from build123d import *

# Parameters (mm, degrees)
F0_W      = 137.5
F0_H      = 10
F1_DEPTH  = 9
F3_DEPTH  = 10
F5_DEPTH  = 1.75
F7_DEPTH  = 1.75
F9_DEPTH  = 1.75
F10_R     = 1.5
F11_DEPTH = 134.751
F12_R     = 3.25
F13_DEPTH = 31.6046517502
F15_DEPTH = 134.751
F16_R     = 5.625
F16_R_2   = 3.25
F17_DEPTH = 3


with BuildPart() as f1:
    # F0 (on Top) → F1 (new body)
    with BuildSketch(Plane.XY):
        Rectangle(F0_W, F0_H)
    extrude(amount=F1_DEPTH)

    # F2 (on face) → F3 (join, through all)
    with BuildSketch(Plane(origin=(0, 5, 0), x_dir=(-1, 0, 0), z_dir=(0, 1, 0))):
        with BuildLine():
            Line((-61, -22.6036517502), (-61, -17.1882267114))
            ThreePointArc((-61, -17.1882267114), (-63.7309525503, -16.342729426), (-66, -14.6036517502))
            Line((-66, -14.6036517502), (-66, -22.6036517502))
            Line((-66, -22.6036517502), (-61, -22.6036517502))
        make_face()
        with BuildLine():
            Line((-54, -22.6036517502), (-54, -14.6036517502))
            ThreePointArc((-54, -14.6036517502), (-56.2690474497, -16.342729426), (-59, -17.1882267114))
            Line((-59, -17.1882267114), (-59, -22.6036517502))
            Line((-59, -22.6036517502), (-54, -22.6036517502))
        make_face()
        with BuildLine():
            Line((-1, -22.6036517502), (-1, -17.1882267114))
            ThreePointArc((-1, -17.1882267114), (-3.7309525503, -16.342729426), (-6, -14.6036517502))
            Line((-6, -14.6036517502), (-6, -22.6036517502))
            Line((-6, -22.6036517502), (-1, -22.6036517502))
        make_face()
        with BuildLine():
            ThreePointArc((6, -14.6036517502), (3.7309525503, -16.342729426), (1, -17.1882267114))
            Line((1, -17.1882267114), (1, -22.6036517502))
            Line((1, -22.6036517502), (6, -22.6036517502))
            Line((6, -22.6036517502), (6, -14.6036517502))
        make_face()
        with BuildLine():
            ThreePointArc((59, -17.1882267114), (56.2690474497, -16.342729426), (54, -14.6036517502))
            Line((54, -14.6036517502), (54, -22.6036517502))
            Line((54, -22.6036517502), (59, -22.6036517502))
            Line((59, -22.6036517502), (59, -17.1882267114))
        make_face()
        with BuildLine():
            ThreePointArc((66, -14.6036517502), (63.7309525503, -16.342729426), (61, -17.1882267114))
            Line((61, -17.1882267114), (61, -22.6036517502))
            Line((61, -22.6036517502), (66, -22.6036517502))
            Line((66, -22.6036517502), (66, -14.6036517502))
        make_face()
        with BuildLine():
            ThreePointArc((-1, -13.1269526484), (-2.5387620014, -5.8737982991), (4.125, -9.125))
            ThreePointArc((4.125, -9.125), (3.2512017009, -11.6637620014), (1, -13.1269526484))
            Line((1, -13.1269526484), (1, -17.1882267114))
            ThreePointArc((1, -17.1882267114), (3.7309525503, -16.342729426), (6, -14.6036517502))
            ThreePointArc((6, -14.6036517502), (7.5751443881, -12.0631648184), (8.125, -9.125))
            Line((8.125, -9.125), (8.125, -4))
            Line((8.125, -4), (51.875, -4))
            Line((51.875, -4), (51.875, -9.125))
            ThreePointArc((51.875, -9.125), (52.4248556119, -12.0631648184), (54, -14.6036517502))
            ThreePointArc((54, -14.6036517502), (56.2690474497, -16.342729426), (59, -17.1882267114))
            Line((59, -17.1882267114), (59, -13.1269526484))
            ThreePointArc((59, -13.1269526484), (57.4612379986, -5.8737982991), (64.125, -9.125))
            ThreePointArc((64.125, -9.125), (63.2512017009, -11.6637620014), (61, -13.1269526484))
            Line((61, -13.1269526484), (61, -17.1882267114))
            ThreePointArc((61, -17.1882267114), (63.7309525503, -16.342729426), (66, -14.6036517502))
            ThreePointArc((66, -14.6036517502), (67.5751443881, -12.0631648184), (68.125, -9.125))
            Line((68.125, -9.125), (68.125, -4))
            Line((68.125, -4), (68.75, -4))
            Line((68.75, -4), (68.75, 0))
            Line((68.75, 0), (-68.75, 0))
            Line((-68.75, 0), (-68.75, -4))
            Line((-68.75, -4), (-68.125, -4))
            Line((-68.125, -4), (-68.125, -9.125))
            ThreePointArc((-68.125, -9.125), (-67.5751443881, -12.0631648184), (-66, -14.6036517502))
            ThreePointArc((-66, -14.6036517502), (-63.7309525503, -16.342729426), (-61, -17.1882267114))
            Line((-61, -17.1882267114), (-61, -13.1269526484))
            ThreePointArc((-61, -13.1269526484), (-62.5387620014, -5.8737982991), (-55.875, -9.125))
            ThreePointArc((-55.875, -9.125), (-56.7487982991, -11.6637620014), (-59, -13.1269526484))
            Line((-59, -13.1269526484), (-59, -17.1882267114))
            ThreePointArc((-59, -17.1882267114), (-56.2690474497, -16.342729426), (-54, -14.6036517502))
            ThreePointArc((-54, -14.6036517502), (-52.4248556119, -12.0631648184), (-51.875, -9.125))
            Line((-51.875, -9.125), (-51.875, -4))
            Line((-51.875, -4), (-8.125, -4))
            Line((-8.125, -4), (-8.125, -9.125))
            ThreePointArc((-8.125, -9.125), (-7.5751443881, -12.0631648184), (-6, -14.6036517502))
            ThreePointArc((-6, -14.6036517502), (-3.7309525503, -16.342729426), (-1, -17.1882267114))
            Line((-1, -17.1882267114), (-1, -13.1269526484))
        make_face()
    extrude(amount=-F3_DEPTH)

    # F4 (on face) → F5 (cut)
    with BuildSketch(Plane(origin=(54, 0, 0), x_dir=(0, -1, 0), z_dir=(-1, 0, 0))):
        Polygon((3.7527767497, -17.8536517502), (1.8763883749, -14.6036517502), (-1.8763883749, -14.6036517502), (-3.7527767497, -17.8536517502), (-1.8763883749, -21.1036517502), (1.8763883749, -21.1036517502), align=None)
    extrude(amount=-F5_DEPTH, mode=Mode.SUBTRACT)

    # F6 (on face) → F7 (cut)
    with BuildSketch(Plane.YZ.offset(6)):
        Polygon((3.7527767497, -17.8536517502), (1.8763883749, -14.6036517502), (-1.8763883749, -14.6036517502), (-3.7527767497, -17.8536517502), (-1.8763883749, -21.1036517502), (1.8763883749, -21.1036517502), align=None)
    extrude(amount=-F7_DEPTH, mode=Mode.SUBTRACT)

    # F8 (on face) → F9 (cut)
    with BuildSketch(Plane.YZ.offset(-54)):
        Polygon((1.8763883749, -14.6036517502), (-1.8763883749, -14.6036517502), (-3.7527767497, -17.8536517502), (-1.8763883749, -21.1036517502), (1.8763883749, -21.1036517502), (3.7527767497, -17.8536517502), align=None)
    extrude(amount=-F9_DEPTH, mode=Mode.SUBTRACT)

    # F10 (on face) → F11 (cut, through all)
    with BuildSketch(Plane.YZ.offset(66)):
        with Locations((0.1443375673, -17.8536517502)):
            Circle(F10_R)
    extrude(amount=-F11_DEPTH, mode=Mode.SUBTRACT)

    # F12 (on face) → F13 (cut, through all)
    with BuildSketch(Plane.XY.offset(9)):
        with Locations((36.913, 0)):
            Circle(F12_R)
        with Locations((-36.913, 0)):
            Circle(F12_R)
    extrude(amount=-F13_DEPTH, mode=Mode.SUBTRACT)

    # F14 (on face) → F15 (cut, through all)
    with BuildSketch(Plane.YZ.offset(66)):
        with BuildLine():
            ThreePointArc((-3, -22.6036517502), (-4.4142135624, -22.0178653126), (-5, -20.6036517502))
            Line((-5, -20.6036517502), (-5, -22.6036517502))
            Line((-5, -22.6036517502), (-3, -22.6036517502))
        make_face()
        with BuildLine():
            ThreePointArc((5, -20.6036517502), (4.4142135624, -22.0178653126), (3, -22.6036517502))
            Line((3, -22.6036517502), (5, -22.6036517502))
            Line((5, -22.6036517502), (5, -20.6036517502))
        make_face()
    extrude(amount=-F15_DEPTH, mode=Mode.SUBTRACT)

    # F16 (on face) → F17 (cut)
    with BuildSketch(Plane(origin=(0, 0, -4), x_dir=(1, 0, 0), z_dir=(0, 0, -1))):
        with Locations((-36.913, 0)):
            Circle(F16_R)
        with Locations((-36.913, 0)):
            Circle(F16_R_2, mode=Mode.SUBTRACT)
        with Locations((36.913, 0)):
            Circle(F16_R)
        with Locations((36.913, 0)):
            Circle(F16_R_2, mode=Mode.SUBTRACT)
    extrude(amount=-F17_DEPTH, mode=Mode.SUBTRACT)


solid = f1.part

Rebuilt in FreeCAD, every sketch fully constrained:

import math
import FreeCAD as App
import Part
import Sketcher
Q = App.Units.Quantity


def add_polygon(sketch, points):
    """Adds a closed chain of lines whose ends are joined by coincident constraints."""
    first, n = sketch.GeometryCount, len(points)
    for a, b in zip(points, points[1:] + points[:1]):
        sketch.addGeometry(Part.LineSegment(App.Vector(*a, 0), App.Vector(*b, 0)), False)
    for i in range(n):
        sketch.addConstraint(Sketcher.Constraint("Coincident", first + i, 2, first + (i + 1) % n, 1))

doc = App.newDocument("Part")
body = doc.addObject("PartDesign::Body", "Body")

# Sketch on XY plane
sketch1 = body.newObject("Sketcher::SketchObject", "Sketch")
sketch1.AttachmentSupport = (doc.getObject("XY_Plane"), [""])
sketch1.MapMode = "FlatFace"
add_polygon(sketch1, [(-69, 5), (-69, -5), (69, -5), (69, 5)])  # lines 0-3
sketch1.addConstraint([
    Sketcher.Constraint("Vertical", 0),
    Sketcher.Constraint("Horizontal", 1),
    Sketcher.Constraint("Vertical", 2),
    Sketcher.Constraint("Horizontal", 3),
    Sketcher.Constraint("Symmetric", 0, 2, 2, 2, -1, 1),
    Sketcher.Constraint("DistanceY", 0, 2, 0, 1, 10.0),
    Sketcher.Constraint("DistanceX", 1, 1, 1, 2, 137.5),
])
pad1 = body.newObject("PartDesign::Pad", "Pad")
pad1.Profile = sketch1
pad1.Length = 9

# Sketch on XZ plane
sketch2 = body.newObject("Sketcher::SketchObject", "Sketch001")
sketch2.AttachmentSupport = (doc.getObject("XZ_Plane"), [""])
sketch2.MapMode = "FlatFace"
sketch2.AttachmentOffset = App.Placement(App.Vector(0, 0, -5), App.Rotation())
sketch2.addGeometry([
    Part.LineSegment(App.Vector(61, -22.6, 0), App.Vector(61, -13.1, 0)),  # 0
    Part.ArcOfCircle(Part.Circle(App.Vector(60, -9.1, 0), App.Vector(0, 0, 1), 4.1), math.radians(-76), math.radians(180)),  # 1
    Part.ArcOfCircle(Part.Circle(App.Vector(60, -9.1, 0), App.Vector(0, 0, 1), 4.1), math.radians(180), math.radians(256)),  # 2
    Part.LineSegment(App.Vector(59, -13.1, 0), App.Vector(59, -22.6, 0)),  # 3
    Part.LineSegment(App.Vector(59, -22.6, 0), App.Vector(54, -22.6, 0)),  # 4
    Part.LineSegment(App.Vector(54, -22.6, 0), App.Vector(54, -14.6, 0)),  # 5
    Part.ArcOfCircle(Part.Circle(App.Vector(60, -9.1, 0), App.Vector(0, 0, 1), 8.1), math.radians(180), math.radians(222)),  # 6
    Part.LineSegment(App.Vector(51.9, -9.1, 0), App.Vector(51.9, -4, 0)),  # 7
    Part.LineSegment(App.Vector(51.9, -4, 0), App.Vector(8.1, -4, 0)),  # 8
    Part.LineSegment(App.Vector(8.1, -4, 0), App.Vector(8.1, -9.1, 0)),  # 9
    Part.ArcOfCircle(Part.Circle(App.Vector(0, -9.1, 0), App.Vector(0, 0, 1), 8.1), math.radians(-42), math.radians(0)),  # 10
    Part.LineSegment(App.Vector(6, -14.6, 0), App.Vector(6, -22.6, 0)),  # 11
    Part.LineSegment(App.Vector(6, -22.6, 0), App.Vector(1, -22.6, 0)),  # 12
    Part.LineSegment(App.Vector(1, -22.6, 0), App.Vector(1, -13.1, 0)),  # 13
    Part.ArcOfCircle(Part.Circle(App.Vector(0, -9.1, 0), App.Vector(0, 0, 1), 4.1), math.radians(-76), math.radians(180)),  # 14
    Part.ArcOfCircle(Part.Circle(App.Vector(0, -9.1, 0), App.Vector(0, 0, 1), 4.1), math.radians(180), math.radians(256)),  # 15
    Part.LineSegment(App.Vector(-1, -13.1, 0), App.Vector(-1, -22.6, 0)),  # 16
    Part.LineSegment(App.Vector(-1, -22.6, 0), App.Vector(-6, -22.6, 0)),  # 17
    Part.LineSegment(App.Vector(-6, -22.6, 0), App.Vector(-6, -14.6, 0)),  # 18
    Part.ArcOfCircle(Part.Circle(App.Vector(0, -9.1, 0), App.Vector(0, 0, 1), 8.1), math.radians(180), math.radians(222)),  # 19
    Part.LineSegment(App.Vector(-8.1, -9.1, 0), App.Vector(-8.1, -4, 0)),  # 20
    Part.LineSegment(App.Vector(-8.1, -4, 0), App.Vector(-51.9, -4, 0)),  # 21
    Part.LineSegment(App.Vector(-51.9, -4, 0), App.Vector(-51.9, -9.1, 0)),  # 22
    Part.ArcOfCircle(Part.Circle(App.Vector(-60, -9.1, 0), App.Vector(0, 0, 1), 8.1), math.radians(-42), math.radians(0)),  # 23
    Part.LineSegment(App.Vector(-54, -14.6, 0), App.Vector(-54, -22.6, 0)),  # 24
    Part.LineSegment(App.Vector(-54, -22.6, 0), App.Vector(-59, -22.6, 0)),  # 25
    Part.LineSegment(App.Vector(-59, -22.6, 0), App.Vector(-59, -13.1, 0)),  # 26
    Part.ArcOfCircle(Part.Circle(App.Vector(-60, -9.1, 0), App.Vector(0, 0, 1), 4.1), math.radians(-76), math.radians(180)),  # 27
    Part.ArcOfCircle(Part.Circle(App.Vector(-60, -9.1, 0), App.Vector(0, 0, 1), 4.1), math.radians(180), math.radians(256)),  # 28
    Part.LineSegment(App.Vector(-61, -13.1, 0), App.Vector(-61, -22.6, 0)),  # 29
    Part.LineSegment(App.Vector(-61, -22.6, 0), App.Vector(-66, -22.6, 0)),  # 30
    Part.LineSegment(App.Vector(-66, -22.6, 0), App.Vector(-66, -14.6, 0)),  # 31
    Part.ArcOfCircle(Part.Circle(App.Vector(-60, -9.1, 0), App.Vector(0, 0, 1), 8.1), math.radians(180), math.radians(222)),  # 32
    Part.LineSegment(App.Vector(-68.1, -9.1, 0), App.Vector(-68.1, -4, 0)),  # 33
    Part.LineSegment(App.Vector(-68.1, -4, 0), App.Vector(-68.8, -4, 0)),  # 34
    Part.LineSegment(App.Vector(-68.8, -4, 0), App.Vector(-68.8, 0, 0)),  # 35
    Part.LineSegment(App.Vector(-68.8, 0, 0), App.Vector(68.8, 0, 0)),  # 36
    Part.LineSegment(App.Vector(68.8, 0, 0), App.Vector(68.8, -4, 0)),  # 37
    Part.LineSegment(App.Vector(68.8, -4, 0), App.Vector(68.1, -4, 0)),  # 38
    Part.LineSegment(App.Vector(68.1, -4, 0), App.Vector(68.1, -9.1, 0)),  # 39
    Part.ArcOfCircle(Part.Circle(App.Vector(60, -9.1, 0), App.Vector(0, 0, 1), 8.1), math.radians(-42), math.radians(0)),  # 40
    Part.LineSegment(App.Vector(66, -14.6, 0), App.Vector(66, -22.6, 0)),  # 41
    Part.LineSegment(App.Vector(66, -22.6, 0), App.Vector(61, -22.6, 0)),  # 42
], False)
sketch2.addConstraint([
    Sketcher.Constraint("Coincident", 0, 2, 1, 1),
    Sketcher.Constraint("Tangent", 1, 2, 2, 1),
    Sketcher.Constraint("Coincident", 2, 2, 3, 1),
    Sketcher.Constraint("Coincident", 3, 2, 4, 1),
    Sketcher.Constraint("Coincident", 4, 2, 5, 1),
    Sketcher.Constraint("Coincident", 5, 2, 6, 2),
    Sketcher.Constraint("Tangent", 6, 1, 7, 1),
    Sketcher.Constraint("Coincident", 7, 2, 8, 1),
    Sketcher.Constraint("Coincident", 8, 2, 9, 1),
    Sketcher.Constraint("Tangent", 9, 2, 10, 2),
    Sketcher.Constraint("Coincident", 10, 1, 11, 1),
    Sketcher.Constraint("Coincident", 11, 2, 12, 1),
    Sketcher.Constraint("Coincident", 12, 2, 13, 1),
    Sketcher.Constraint("Coincident", 13, 2, 14, 1),
    Sketcher.Constraint("Tangent", 14, 2, 15, 1),
    Sketcher.Constraint("Coincident", 15, 2, 16, 1),
    Sketcher.Constraint("Coincident", 16, 2, 17, 1),
    Sketcher.Constraint("Coincident", 17, 2, 18, 1),
    Sketcher.Constraint("Coincident", 18, 2, 19, 2),
    Sketcher.Constraint("Tangent", 19, 1, 20, 1),
    Sketcher.Constraint("Coincident", 20, 2, 21, 1),
    Sketcher.Constraint("Coincident", 21, 2, 22, 1),
    Sketcher.Constraint("Tangent", 22, 2, 23, 2),
    Sketcher.Constraint("Coincident", 23, 1, 24, 1),
    Sketcher.Constraint("Coincident", 24, 2, 25, 1),
    Sketcher.Constraint("Coincident", 25, 2, 26, 1),
    Sketcher.Constraint("Coincident", 26, 2, 27, 1),
    Sketcher.Constraint("Tangent", 27, 2, 28, 1),
    Sketcher.Constraint("Coincident", 28, 2, 29, 1),
    Sketcher.Constraint("Coincident", 29, 2, 30, 1),
    Sketcher.Constraint("Coincident", 30, 2, 31, 1),
    Sketcher.Constraint("Coincident", 31, 2, 32, 2),
    Sketcher.Constraint("Tangent", 32, 1, 33, 1),
    Sketcher.Constraint("Coincident", 33, 2, 34, 1),
    Sketcher.Constraint("Coincident", 34, 2, 35, 1),
    Sketcher.Constraint("Coincident", 35, 2, 36, 1),
    Sketcher.Constraint("Coincident", 36, 2, 37, 1),
    Sketcher.Constraint("Coincident", 37, 2, 38, 1),
    Sketcher.Constraint("Coincident", 38, 2, 39, 1),
    Sketcher.Constraint("Tangent", 39, 2, 40, 2),
    Sketcher.Constraint("Coincident", 40, 1, 41, 1),
    Sketcher.Constraint("Coincident", 41, 2, 42, 1),
    Sketcher.Constraint("Coincident", 42, 2, 0, 1),
    Sketcher.Constraint("Vertical", 0),
    Sketcher.Constraint("Vertical", 3),
    Sketcher.Constraint("Horizontal", 4),
    Sketcher.Constraint("Vertical", 5),
    Sketcher.Constraint("Vertical", 7),
    Sketcher.Constraint("Horizontal", 8),
    Sketcher.Constraint("Vertical", 9),
    Sketcher.Constraint("Vertical", 11),
    Sketcher.Constraint("Horizontal", 12),
    Sketcher.Constraint("Vertical", 13),
    Sketcher.Constraint("Vertical", 16),
    Sketcher.Constraint("Horizontal", 17),
    Sketcher.Constraint("Vertical", 18),
    Sketcher.Constraint("Vertical", 20),
    Sketcher.Constraint("Horizontal", 21),
    Sketcher.Constraint("Vertical", 22),
    Sketcher.Constraint("Vertical", 24),
    Sketcher.Constraint("Horizontal", 25),
    Sketcher.Constraint("Vertical", 26),
    Sketcher.Constraint("Vertical", 29),
    Sketcher.Constraint("Horizontal", 30),
    Sketcher.Constraint("Vertical", 31),
    Sketcher.Constraint("Vertical", 33),
    Sketcher.Constraint("Horizontal", 34),
    Sketcher.Constraint("Vertical", 35),
    Sketcher.Constraint("Horizontal", 36),
    Sketcher.Constraint("Vertical", 37),
    Sketcher.Constraint("Horizontal", 38),
    Sketcher.Constraint("Vertical", 39),
    Sketcher.Constraint("Vertical", 41),
    Sketcher.Constraint("Horizontal", 42),
    Sketcher.Constraint("Coincident", 6, 3, 1, 3),
    Sketcher.Constraint("Coincident", 14, 3, 10, 3),
    Sketcher.Constraint("Coincident", 19, 3, 10, 3),
    Sketcher.Constraint("Coincident", 27, 3, 23, 3),
    Sketcher.Constraint("Coincident", 32, 3, 23, 3),
    Sketcher.Constraint("Coincident", 40, 3, 1, 3),
    Sketcher.Constraint("Equal", 1, 2),
    Sketcher.Constraint("Equal", 6, 10),
    Sketcher.Constraint("Equal", 2, 14),
    Sketcher.Constraint("Equal", 14, 15),
    Sketcher.Constraint("Equal", 10, 19),
    Sketcher.Constraint("Equal", 19, 23),
    Sketcher.Constraint("Equal", 15, 27),
    Sketcher.Constraint("Equal", 27, 28),
    Sketcher.Constraint("Equal", 23, 32),
    Sketcher.Constraint("Equal", 32, 40),
    Sketcher.Constraint("Symmetric", 35, 2, 36, 2, -1, 1),
    Sketcher.Constraint("Symmetric", 1, 3, 23, 3, -2),
    Sketcher.Constraint("Symmetric", 13, 2, 15, 2, -2),
    Sketcher.Constraint("Symmetric", 11, 2, 17, 2, -2),
    Sketcher.Constraint("Symmetric", 4, 2, 24, 2, -2),
    Sketcher.Constraint("Symmetric", 30, 2, 41, 2, -2),
    Sketcher.Constraint("Horizontal", 6, 3, 10, 3),
    Sketcher.Constraint("Horizontal", 40, 3, 1, 2),
    Sketcher.Constraint("Horizontal", 0, 2, 2, 2),
    Sketcher.Constraint("Horizontal", 5, 2, 10, 1),
    Sketcher.Constraint("Horizontal", 4, 2, 11, 2),
    Sketcher.Constraint("Horizontal", 2, 2, 13, 2),
    Sketcher.Constraint("Horizontal", 9, 2, 14, 2),
    Sketcher.Constraint("Horizontal", 8, 2, 20, 2),
    Sketcher.Constraint("Horizontal", 15, 2, 26, 2),
    Sketcher.Constraint("Horizontal", 22, 2, 27, 2),
    Sketcher.Constraint("Horizontal", 26, 2, 28, 2),
    Sketcher.Constraint("Horizontal", 25, 2, 29, 2),
    Sketcher.Constraint("Horizontal", 23, 1, 31, 2),
    Sketcher.Constraint("Horizontal", 21, 2, 33, 2),
    Sketcher.Constraint("Horizontal", 34, 2, 37, 2),
    Sketcher.Constraint("DistanceX", 4, 2, 4, 1, 5.0),
    Sketcher.Constraint("DistanceY", 5, 1, 5, 2, 8.0),
    Sketcher.Constraint("DistanceY", 35, 1, 35, 2, 4.0),
    Sketcher.Constraint("DistanceX", 36, 1, 36, 2, 137.5),
    Sketcher.Constraint("DistanceX", -1, 1, 1, 3, 60.0),
    Sketcher.Constraint("DistanceX", -1, 1, 0, 2, 61.0),
    Sketcher.Constraint("Radius", 1, 4.125),
    Sketcher.Constraint("Radius", 6, 8.125),
    Sketcher.Constraint("DistanceY", 7, 1, 7, 2, 5.125),
])
pad2 = body.newObject("PartDesign::Pad", "Pad001")
pad2.Profile = sketch2
pad2.Length = 10

# Sketch on YZ plane
sketch3 = body.newObject("Sketcher::SketchObject", "Sketch002")
sketch3.AttachmentSupport = (doc.getObject("YZ_Plane"), [""])
sketch3.MapMode = "FlatFace"
sketch3.AttachmentOffset = App.Placement(App.Vector(0, 0, 54), App.Rotation())
add_polygon(sketch3, [(-3.8, -17.9), (-1.9, -14.6), (1.9, -14.6), (3.8, -17.9), (1.9, -21.1), (-1.9, -21.1)])  # lines 0-5
sketch3.addConstraint([
    Sketcher.Constraint("Horizontal", 1),
    Sketcher.Constraint("Horizontal", 4),
    Sketcher.Constraint("Symmetric", 2, 2, 5, 2, -2),
    Sketcher.Constraint("Parallel", 0, 3),
    Sketcher.Constraint("Parallel", 2, 5),
    Sketcher.Constraint("Vertical", 1, 2, 3, 2),
    Sketcher.Constraint("Vertical", 0, 2, 4, 2),
    Sketcher.Constraint("Angle", 0, Q("60 deg")),
    Sketcher.Constraint("DistanceY", 3, 2, 1, 2, 6.5),
    Sketcher.Constraint("DistanceX", 1, 1, 1, 2, 3.752777),
    Sketcher.Constraint("DistanceY", 0, 2, -1, 1, 14.603652),
])
pocket1 = body.newObject("PartDesign::Pocket", "Pocket")
pocket1.Profile = sketch3
pocket1.Length = 1.75
pocket1.Reversed = True

# Sketch on YZ plane
sketch4 = body.newObject("Sketcher::SketchObject", "Sketch003")
sketch4.AttachmentSupport = (doc.getObject("YZ_Plane"), [""])
sketch4.MapMode = "FlatFace"
sketch4.AttachmentOffset = App.Placement(App.Vector(0, 0, 6), App.Rotation())
add_polygon(sketch4, [(3.8, -17.9), (1.9, -14.6), (-1.9, -14.6), (-3.8, -17.9), (-1.9, -21.1), (1.9, -21.1)])  # lines 0-5
sketch4.addConstraint([
    Sketcher.Constraint("Horizontal", 1),
    Sketcher.Constraint("Horizontal", 4),
    Sketcher.Constraint("Symmetric", 2, 2, 5, 2, -2),
    Sketcher.Constraint("Parallel", 0, 3),
    Sketcher.Constraint("Parallel", 2, 5),
    Sketcher.Constraint("Vertical", 1, 2, 3, 2),
    Sketcher.Constraint("Vertical", 0, 2, 4, 2),
    Sketcher.Constraint("Angle", 0, Q("120 deg")),
    Sketcher.Constraint("DistanceY", 3, 2, 1, 2, 6.5),
    Sketcher.Constraint("DistanceX", 1, 2, 1, 1, 3.752777),
    Sketcher.Constraint("DistanceY", 0, 2, -1, 1, 14.603652),
])
pocket2 = body.newObject("PartDesign::Pocket", "Pocket001")
pocket2.Profile = sketch4
pocket2.Length = 1.75

# Sketch on YZ plane
sketch5 = body.newObject("Sketcher::SketchObject", "Sketch004")
sketch5.AttachmentSupport = (doc.getObject("YZ_Plane"), [""])
sketch5.MapMode = "FlatFace"
sketch5.AttachmentOffset = App.Placement(App.Vector(0, 0, -54), App.Rotation())
add_polygon(sketch5, [(1.9, -14.6), (-1.9, -14.6), (-3.8, -17.9), (-1.9, -21.1), (1.9, -21.1), (3.8, -17.9)])  # lines 0-5
sketch5.addConstraint([
    Sketcher.Constraint("Horizontal", 0),
    Sketcher.Constraint("Horizontal", 3),
    Sketcher.Constraint("Symmetric", 1, 2, 4, 2, -2),
    Sketcher.Constraint("Parallel", 1, 4),
    Sketcher.Constraint("Parallel", 2, 5),
    Sketcher.Constraint("Vertical", 0, 2, 2, 2),
    Sketcher.Constraint("Vertical", 3, 2, 5, 2),
    Sketcher.Constraint("Angle", 1, Q("-120 deg")),
    Sketcher.Constraint("DistanceY", 2, 2, 0, 2, 6.5),
    Sketcher.Constraint("DistanceX", 0, 2, 0, 1, 3.752777),
    Sketcher.Constraint("DistanceY", 0, 2, -1, 1, 14.603652),
])
pocket3 = body.newObject("PartDesign::Pocket", "Pocket002")
pocket3.Profile = sketch5
pocket3.Length = 1.75

# Sketch on YZ plane
sketch6 = body.newObject("Sketcher::SketchObject", "Sketch005")
sketch6.AttachmentSupport = (doc.getObject("YZ_Plane"), [""])
sketch6.MapMode = "FlatFace"
sketch6.AttachmentOffset = App.Placement(App.Vector(0, 0, 66), App.Rotation())
sketch6.addGeometry(Part.Circle(App.Vector(0.1, -17.9, 0), App.Vector(0, 0, 1), 1.5), False)
sketch6.addConstraint([
    Sketcher.Constraint("Diameter", 0, 3.0),
    Sketcher.Constraint("DistanceY", 0, 3, -1, 1, 17.853652),
    Sketcher.Constraint("DistanceX", -1, 1, 0, 3, 0.144338),
])
pocket4 = body.newObject("PartDesign::Pocket", "Pocket003")
pocket4.Profile = sketch6
pocket4.Type = "ThroughAll"

# Sketch on XY plane
sketch7 = body.newObject("Sketcher::SketchObject", "Sketch006")
sketch7.AttachmentSupport = (doc.getObject("XY_Plane"), [""])
sketch7.MapMode = "FlatFace"
sketch7.AttachmentOffset = App.Placement(App.Vector(0, 0, 9), App.Rotation())
sketch7.addGeometry([
    Part.Circle(App.Vector(36.9, 0, 0), App.Vector(0, 0, 1), 3.2),
    Part.Circle(App.Vector(-36.9, 0, 0), App.Vector(0, 0, 1), 3.2),
], False)
sketch7.addConstraint([
    Sketcher.Constraint("Equal", 0, 1),
    Sketcher.Constraint("Symmetric", 0, 3, 1, 3, -1, 1),
    Sketcher.Constraint("PointOnObject", 0, 3, -1),
    Sketcher.Constraint("Diameter", 0, 6.5),
    Sketcher.Constraint("DistanceX", -1, 1, 0, 3, 36.913),
])
pocket5 = body.newObject("PartDesign::Pocket", "Pocket004")
pocket5.Profile = sketch7
pocket5.Type = "ThroughAll"

# Sketch on YZ plane
sketch8 = body.newObject("Sketcher::SketchObject", "Sketch007")
sketch8.AttachmentSupport = (doc.getObject("YZ_Plane"), [""])
sketch8.MapMode = "FlatFace"
sketch8.AttachmentOffset = App.Placement(App.Vector(0, 0, 66), App.Rotation())
sketch8.addGeometry([
    Part.ArcOfCircle(Part.Circle(App.Vector(-3, -20.6, 0), App.Vector(0, 0, 1), 2), math.radians(180), math.radians(270)),  # 0
    Part.LineSegment(App.Vector(-5, -20.6, 0), App.Vector(-5, -22.6, 0)),  # 1
    Part.LineSegment(App.Vector(-5, -22.6, 0), App.Vector(-3, -22.6, 0)),  # 2
    Part.ArcOfCircle(Part.Circle(App.Vector(3, -20.6, 0), App.Vector(0, 0, 1), 2), math.radians(-90), math.radians(0)),  # 3
    Part.LineSegment(App.Vector(3, -22.6, 0), App.Vector(5, -22.6, 0)),  # 4
    Part.LineSegment(App.Vector(5, -22.6, 0), App.Vector(5, -20.6, 0)),  # 5
], False)
sketch8.addConstraint([
    Sketcher.Constraint("Tangent", 0, 1, 1, 1),
    Sketcher.Constraint("Coincident", 1, 2, 2, 1),
    Sketcher.Constraint("Tangent", 2, 2, 0, 2),
    Sketcher.Constraint("Tangent", 3, 1, 4, 1),
    Sketcher.Constraint("Coincident", 4, 2, 5, 1),
    Sketcher.Constraint("Tangent", 5, 2, 3, 2),
    Sketcher.Constraint("Vertical", 1),
    Sketcher.Constraint("Horizontal", 2),
    Sketcher.Constraint("Horizontal", 4),
    Sketcher.Constraint("Vertical", 5),
    Sketcher.Constraint("Equal", 0, 3),
    Sketcher.Constraint("Symmetric", 0, 3, 3, 3, -2),
    Sketcher.Constraint("Radius", 0, 2.0),
    Sketcher.Constraint("DistanceX", 0, 3, -1, 1, 3.0),
    Sketcher.Constraint("DistanceY", 0, 3, -1, 1, 20.603652),
])
pocket6 = body.newObject("PartDesign::Pocket", "Pocket005")
pocket6.Profile = sketch8
pocket6.Type = "ThroughAll"

# Sketch on XY plane
sketch9 = body.newObject("Sketcher::SketchObject", "Sketch008")
sketch9.AttachmentSupport = (doc.getObject("XY_Plane"), [""])
sketch9.MapMode = "FlatFace"
sketch9.AttachmentOffset = App.Placement(App.Vector(0, 0, -4), App.Rotation())
sketch9.addGeometry([
    Part.Circle(App.Vector(-36.9, 0, 0), App.Vector(0, 0, 1), 5.6),
    Part.Circle(App.Vector(-36.9, 0, 0), App.Vector(0, 0, 1), 3.2),
    Part.Circle(App.Vector(36.9, 0, 0), App.Vector(0, 0, 1), 5.6),
    Part.Circle(App.Vector(36.9, 0, 0), App.Vector(0, 0, 1), 3.2),
], False)
sketch9.addConstraint([
    Sketcher.Constraint("Coincident", 1, 3, 0, 3),
    Sketcher.Constraint("Coincident", 3, 3, 2, 3),
    Sketcher.Constraint("Equal", 0, 2),
    Sketcher.Constraint("Equal", 1, 3),
    Sketcher.Constraint("Symmetric", 0, 3, 2, 3, -1, 1),
    Sketcher.Constraint("PointOnObject", 0, 3, -1),
    Sketcher.Constraint("Diameter", 1, 6.5),
    Sketcher.Constraint("Diameter", 0, 11.25),
    Sketcher.Constraint("DistanceX", 0, 3, -1, 1, 36.913),
])
pocket7 = body.newObject("PartDesign::Pocket", "Pocket006")
pocket7.Profile = sketch9
pocket7.Length = 3
pocket7.Reversed = True

doc.recompute()
